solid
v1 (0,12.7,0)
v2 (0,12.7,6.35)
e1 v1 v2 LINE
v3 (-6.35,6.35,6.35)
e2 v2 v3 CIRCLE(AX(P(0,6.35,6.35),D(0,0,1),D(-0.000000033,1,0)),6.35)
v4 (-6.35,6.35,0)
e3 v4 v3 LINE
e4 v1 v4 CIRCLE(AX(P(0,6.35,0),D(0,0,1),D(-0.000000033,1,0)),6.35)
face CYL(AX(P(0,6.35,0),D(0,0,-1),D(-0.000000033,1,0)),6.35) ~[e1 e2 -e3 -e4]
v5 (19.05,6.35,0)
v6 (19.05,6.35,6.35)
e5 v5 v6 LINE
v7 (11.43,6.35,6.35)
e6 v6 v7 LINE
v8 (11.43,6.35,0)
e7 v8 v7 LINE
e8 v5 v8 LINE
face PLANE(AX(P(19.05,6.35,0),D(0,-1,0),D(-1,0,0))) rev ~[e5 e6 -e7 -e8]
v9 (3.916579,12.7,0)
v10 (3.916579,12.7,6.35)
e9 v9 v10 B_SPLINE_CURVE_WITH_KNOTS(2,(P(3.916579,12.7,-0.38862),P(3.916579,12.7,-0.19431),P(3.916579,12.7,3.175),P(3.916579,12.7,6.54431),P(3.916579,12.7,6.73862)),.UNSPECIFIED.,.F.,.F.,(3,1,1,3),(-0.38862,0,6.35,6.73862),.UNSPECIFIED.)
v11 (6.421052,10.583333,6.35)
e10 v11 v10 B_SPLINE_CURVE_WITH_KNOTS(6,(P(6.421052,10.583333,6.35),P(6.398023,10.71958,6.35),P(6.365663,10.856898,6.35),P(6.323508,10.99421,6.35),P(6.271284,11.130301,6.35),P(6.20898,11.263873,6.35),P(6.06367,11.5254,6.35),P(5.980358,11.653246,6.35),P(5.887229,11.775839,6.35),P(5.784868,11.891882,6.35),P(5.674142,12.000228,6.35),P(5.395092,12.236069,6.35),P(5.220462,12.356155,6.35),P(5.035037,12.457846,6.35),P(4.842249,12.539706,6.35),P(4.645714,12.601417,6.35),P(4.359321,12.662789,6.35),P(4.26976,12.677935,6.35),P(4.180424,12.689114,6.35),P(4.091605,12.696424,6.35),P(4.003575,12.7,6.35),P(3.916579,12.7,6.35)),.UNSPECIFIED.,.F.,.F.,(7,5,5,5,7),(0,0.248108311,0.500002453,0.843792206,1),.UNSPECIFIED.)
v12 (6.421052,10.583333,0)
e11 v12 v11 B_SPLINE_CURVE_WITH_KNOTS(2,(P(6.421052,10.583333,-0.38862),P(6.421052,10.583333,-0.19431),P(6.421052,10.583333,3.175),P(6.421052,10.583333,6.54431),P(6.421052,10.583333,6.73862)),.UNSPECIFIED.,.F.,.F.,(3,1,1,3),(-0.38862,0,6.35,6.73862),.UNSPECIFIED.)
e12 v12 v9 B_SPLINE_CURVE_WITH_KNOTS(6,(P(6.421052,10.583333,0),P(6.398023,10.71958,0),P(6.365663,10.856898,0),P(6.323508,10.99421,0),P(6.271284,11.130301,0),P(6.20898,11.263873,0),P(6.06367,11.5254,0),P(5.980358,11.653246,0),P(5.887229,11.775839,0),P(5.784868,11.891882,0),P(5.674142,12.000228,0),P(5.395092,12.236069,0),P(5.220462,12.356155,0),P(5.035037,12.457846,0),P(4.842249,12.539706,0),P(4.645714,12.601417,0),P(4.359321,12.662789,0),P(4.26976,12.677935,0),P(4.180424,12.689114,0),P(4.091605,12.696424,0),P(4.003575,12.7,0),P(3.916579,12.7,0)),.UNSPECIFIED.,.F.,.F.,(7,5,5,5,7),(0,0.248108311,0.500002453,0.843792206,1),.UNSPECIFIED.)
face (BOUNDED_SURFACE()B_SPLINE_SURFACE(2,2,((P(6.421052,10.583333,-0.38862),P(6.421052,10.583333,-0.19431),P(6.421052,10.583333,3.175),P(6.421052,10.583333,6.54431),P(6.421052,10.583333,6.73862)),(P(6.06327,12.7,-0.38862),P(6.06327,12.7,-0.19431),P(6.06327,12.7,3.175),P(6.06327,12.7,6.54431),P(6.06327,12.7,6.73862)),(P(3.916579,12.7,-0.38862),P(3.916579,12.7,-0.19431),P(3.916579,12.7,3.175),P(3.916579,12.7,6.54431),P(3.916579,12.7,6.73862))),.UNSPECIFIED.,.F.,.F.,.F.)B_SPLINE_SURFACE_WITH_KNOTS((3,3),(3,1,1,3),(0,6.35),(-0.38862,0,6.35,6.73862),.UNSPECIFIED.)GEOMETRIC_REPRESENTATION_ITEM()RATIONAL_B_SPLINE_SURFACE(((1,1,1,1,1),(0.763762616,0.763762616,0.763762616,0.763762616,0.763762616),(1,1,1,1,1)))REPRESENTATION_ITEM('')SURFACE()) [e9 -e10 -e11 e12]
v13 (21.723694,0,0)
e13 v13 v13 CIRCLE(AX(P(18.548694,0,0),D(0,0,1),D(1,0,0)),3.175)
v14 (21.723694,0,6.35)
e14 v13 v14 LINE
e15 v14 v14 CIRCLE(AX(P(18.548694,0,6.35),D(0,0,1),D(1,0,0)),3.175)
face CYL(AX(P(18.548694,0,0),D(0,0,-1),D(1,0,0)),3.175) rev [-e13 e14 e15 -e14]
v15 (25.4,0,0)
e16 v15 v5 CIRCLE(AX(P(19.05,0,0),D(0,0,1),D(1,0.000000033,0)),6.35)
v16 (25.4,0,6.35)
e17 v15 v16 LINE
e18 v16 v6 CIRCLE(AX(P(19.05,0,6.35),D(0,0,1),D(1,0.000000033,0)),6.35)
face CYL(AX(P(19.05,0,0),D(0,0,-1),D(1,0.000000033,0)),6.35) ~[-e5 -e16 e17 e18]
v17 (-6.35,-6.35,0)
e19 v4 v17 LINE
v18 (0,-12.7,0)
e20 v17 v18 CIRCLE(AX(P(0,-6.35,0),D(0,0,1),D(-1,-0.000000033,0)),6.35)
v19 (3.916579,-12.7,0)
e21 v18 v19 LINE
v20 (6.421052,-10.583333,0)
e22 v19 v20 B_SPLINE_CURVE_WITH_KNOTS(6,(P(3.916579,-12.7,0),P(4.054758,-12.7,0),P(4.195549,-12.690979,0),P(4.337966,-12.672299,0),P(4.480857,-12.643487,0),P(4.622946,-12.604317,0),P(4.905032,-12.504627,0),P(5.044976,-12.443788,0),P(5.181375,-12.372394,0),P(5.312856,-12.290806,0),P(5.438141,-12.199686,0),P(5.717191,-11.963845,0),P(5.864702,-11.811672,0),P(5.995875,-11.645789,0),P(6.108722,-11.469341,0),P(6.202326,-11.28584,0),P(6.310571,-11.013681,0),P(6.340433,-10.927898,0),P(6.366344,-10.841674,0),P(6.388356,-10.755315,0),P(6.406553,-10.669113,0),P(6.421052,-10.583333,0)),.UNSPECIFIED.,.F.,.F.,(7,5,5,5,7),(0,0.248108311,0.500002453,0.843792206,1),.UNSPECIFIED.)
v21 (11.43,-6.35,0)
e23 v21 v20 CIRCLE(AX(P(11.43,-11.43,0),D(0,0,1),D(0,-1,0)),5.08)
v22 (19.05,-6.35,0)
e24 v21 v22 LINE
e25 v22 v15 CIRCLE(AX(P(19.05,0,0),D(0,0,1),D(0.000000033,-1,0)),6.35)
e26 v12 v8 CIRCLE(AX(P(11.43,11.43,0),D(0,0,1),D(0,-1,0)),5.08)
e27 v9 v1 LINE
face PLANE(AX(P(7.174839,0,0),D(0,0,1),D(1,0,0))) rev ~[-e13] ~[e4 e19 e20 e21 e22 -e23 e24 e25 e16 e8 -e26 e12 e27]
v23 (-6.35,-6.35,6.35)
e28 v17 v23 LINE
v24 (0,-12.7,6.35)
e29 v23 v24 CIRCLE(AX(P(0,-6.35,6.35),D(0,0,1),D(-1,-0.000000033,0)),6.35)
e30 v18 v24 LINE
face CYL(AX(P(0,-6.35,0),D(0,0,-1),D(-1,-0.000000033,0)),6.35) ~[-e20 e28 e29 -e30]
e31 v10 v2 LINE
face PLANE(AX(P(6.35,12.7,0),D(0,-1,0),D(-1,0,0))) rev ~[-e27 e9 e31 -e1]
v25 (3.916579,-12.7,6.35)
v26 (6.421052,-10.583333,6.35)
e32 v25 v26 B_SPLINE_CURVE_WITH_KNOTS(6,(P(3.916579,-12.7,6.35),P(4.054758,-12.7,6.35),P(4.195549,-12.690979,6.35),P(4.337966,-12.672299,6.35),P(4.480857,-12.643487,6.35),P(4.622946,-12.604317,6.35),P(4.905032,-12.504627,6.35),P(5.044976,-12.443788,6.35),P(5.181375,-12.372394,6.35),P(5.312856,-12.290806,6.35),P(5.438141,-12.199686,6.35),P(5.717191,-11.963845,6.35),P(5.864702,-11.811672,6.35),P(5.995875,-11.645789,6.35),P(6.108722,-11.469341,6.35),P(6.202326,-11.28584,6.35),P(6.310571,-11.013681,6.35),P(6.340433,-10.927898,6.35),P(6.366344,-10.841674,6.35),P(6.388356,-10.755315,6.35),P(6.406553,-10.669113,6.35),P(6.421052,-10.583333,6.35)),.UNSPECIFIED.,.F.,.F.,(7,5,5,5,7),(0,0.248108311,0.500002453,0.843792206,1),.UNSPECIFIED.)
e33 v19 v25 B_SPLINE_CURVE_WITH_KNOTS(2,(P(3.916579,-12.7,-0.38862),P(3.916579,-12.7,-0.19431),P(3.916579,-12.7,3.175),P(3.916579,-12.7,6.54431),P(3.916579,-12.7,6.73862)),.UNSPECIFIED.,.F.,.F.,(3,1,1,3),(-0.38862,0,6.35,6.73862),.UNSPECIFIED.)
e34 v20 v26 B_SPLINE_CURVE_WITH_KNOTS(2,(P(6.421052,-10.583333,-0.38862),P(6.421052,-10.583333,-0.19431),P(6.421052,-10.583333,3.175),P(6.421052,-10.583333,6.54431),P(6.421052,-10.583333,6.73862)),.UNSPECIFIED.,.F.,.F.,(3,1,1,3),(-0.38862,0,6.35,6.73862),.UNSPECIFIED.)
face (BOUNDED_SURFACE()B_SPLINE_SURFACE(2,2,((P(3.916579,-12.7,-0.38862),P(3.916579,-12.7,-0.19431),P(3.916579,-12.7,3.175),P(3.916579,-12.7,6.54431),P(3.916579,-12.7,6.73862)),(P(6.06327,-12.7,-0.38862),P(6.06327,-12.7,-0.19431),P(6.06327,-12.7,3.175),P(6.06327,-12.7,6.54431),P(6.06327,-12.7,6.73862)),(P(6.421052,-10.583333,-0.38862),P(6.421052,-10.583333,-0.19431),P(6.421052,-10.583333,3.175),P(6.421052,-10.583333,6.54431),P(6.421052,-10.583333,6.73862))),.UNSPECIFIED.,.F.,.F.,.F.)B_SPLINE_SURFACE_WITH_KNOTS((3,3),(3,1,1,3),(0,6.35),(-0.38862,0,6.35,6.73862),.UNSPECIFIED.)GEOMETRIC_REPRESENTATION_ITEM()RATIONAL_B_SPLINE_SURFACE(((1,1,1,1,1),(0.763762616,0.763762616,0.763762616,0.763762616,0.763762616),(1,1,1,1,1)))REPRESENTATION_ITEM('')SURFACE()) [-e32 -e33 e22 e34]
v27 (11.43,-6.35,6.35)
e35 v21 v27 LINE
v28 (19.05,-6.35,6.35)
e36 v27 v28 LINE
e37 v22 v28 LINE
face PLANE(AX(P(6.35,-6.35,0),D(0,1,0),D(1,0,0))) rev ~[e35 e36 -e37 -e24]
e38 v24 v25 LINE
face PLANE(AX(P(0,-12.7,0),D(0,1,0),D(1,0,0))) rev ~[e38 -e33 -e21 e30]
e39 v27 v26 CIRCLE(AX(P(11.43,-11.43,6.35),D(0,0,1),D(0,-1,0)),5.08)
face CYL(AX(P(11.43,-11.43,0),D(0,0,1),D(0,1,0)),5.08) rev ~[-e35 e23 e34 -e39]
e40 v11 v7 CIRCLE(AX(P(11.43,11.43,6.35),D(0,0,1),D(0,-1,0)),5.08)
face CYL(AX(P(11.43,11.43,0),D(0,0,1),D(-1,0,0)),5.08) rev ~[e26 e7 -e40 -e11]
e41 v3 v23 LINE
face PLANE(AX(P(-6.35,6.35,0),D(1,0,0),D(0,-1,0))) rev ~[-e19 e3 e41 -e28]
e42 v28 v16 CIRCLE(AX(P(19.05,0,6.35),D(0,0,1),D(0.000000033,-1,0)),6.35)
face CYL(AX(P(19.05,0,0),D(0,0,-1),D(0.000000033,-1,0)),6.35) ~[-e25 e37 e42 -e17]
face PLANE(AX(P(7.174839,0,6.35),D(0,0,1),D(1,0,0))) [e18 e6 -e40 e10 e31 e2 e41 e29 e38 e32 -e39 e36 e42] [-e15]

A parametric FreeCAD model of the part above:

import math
import FreeCAD as App
import Part
import Sketcher

V = App.Vector
Q = App.Units.Quantity


def edges_at(feature, points):
    """Names of the edges that pass closest to the given points."""
    edges = feature.Shape.Edges
    near = lambda p: min(range(len(edges)), key=lambda i: edges[i].distToShape(Part.Vertex(*p))[0])
    return sorted({f"Edge{near(p) + 1}" for p in points})

doc = App.newDocument("Part")
body = doc.addObject("PartDesign::Body", "Body")

# Sketch on XY plane
sketch1 = body.newObject("Sketcher::SketchObject", "Sketch")
sketch1.AttachmentSupport = (doc.getObject("XY_Plane"), [""])
sketch1.MapMode = "FlatFace"
sketch1.addGeometry(Part.LineSegment(V(6.3, 6.3, 0), V(6.3, 12.7, 0)), False)
sketch1.addGeometry(Part.LineSegment(V(6.3, 12.7, 0), V(0, 12.7, 0)), False)
sketch1.addGeometry(Part.ArcOfCircle(Part.Circle(V(0, 6.3, 0), V(0, 0, 1), 6.4), math.radians(90), math.radians(180)), False)
sketch1.addGeometry(Part.LineSegment(V(-6.3, 6.3, 0), V(-6.3, -6.3, 0)), False)
sketch1.addGeometry(Part.ArcOfCircle(Part.Circle(V(0, -6.3, 0), V(0, 0, 1), 6.4), math.radians(-180), math.radians(-90)), False)
sketch1.addGeometry(Part.LineSegment(V(0, -12.7, 0), V(6.3, -12.7, 0)), False)
sketch1.addGeometry(Part.LineSegment(V(6.3, -12.7, 0), V(6.3, -6.3, 0)), False)
sketch1.addGeometry(Part.LineSegment(V(6.3, -6.3, 0), V(19.1, -6.3, 0)), False)
sketch1.addGeometry(Part.ArcOfCircle(Part.Circle(V(19, 0, 0), V(0, 0, 1), 6.4), math.radians(-90), math.radians(0)), False)
sketch1.addGeometry(Part.ArcOfCircle(Part.Circle(V(19, 0, 0), V(0, 0, 1), 6.4), math.radians(0), math.radians(90)), False)
sketch1.addGeometry(Part.LineSegment(V(19.1, 6.3, 0), V(6.3, 6.3, 0)), False)
sketch1.addGeometry(Part.Circle(V(18.5, 0, 0), V(0, 0, 1), 3.2), False)
sketch1.addConstraint(Sketcher.Constraint("Coincident", 0, 2, 1, 1))
sketch1.addConstraint(Sketcher.Constraint("Tangent", 1, 2, 2, 1))
sketch1.addConstraint(Sketcher.Constraint("Tangent", 2, 2, 3, 1))
sketch1.addConstraint(Sketcher.Constraint("Tangent", 3, 2, 4, 1))
sketch1.addConstraint(Sketcher.Constraint("Tangent", 4, 2, 5, 1))
sketch1.addConstraint(Sketcher.Constraint("Coincident", 5, 2, 6, 1))
sketch1.addConstraint(Sketcher.Constraint("Coincident", 6, 2, 7, 1))
sketch1.addConstraint(Sketcher.Constraint("Tangent", 7, 2, 8, 1))
sketch1.addConstraint(Sketcher.Constraint("Tangent", 8, 2, 9, 1))
sketch1.addConstraint(Sketcher.Constraint("Tangent", 9, 2, 10, 1))
sketch1.addConstraint(Sketcher.Constraint("Coincident", 10, 2, 0, 1))
sketch1.addConstraint(Sketcher.Constraint("Vertical", 0))
sketch1.addConstraint(Sketcher.Constraint("Horizontal", 1))
sketch1.addConstraint(Sketcher.Constraint("Vertical", 3))
sketch1.addConstraint(Sketcher.Constraint("Horizontal", 5))
sketch1.addConstraint(Sketcher.Constraint("Vertical", 6))
sketch1.addConstraint(Sketcher.Constraint("Horizontal", 7))
sketch1.addConstraint(Sketcher.Constraint("Horizontal", 10))
sketch1.addConstraint(Sketcher.Constraint("Equal", 2, 4))
sketch1.addConstraint(Sketcher.Constraint("Equal", 4, 8))
sketch1.addConstraint(Sketcher.Constraint("Equal", 8, 9))
sketch1.addConstraint(Sketcher.Constraint("Symmetric", 2, 3, 4, 3, -1, 1))
sketch1.addConstraint(Sketcher.Constraint("Symmetric", 2, 2, 6, 2, -1, 1))
sketch1.addConstraint(Sketcher.Constraint("Symmetric", 3, 2, 10, 2, -1, 1))
sketch1.addConstraint(Sketcher.Constraint("PointOnObject", 11, 3, -1))
sketch1.addConstraint(Sketcher.Constraint("PointOnObject", 8, 2, -1))
sketch1.addConstraint(Sketcher.Constraint("Equal", 10, 3))
sketch1.addConstraint(Sketcher.Constraint("Diameter", 11, Q("0.25 in")))
sketch1.addConstraint(Sketcher.Constraint("Radius", 2, Q("0.25 in")))
sketch1.addConstraint(Sketcher.Constraint("DistanceX", -1, 1, 11, 3, Q("18.548694 mm")))
pad1 = body.newObject("PartDesign::Pad", "Pad")
pad1.Profile = sketch1
pad1.Length = Q("0.25 in")
doc.recompute()

fillet = body.newObject("PartDesign::Fillet", "Fillet")
fillet.Base = (pad1, edges_at(pad1, [(6.35, -6.35, 3.175), (6.35, 6.35, 3.175)]))
fillet.Radius = Q("0.2 in")
doc.recompute()

fillet2 = body.newObject("PartDesign::Fillet", "Fillet001")
fillet2.Base = (fillet, edges_at(fillet, [(6.35, 12.7, 3.175), (6.35, -12.7, 3.175)]))
fillet2.Radius = Q("0.1 in")

doc.recompute()
